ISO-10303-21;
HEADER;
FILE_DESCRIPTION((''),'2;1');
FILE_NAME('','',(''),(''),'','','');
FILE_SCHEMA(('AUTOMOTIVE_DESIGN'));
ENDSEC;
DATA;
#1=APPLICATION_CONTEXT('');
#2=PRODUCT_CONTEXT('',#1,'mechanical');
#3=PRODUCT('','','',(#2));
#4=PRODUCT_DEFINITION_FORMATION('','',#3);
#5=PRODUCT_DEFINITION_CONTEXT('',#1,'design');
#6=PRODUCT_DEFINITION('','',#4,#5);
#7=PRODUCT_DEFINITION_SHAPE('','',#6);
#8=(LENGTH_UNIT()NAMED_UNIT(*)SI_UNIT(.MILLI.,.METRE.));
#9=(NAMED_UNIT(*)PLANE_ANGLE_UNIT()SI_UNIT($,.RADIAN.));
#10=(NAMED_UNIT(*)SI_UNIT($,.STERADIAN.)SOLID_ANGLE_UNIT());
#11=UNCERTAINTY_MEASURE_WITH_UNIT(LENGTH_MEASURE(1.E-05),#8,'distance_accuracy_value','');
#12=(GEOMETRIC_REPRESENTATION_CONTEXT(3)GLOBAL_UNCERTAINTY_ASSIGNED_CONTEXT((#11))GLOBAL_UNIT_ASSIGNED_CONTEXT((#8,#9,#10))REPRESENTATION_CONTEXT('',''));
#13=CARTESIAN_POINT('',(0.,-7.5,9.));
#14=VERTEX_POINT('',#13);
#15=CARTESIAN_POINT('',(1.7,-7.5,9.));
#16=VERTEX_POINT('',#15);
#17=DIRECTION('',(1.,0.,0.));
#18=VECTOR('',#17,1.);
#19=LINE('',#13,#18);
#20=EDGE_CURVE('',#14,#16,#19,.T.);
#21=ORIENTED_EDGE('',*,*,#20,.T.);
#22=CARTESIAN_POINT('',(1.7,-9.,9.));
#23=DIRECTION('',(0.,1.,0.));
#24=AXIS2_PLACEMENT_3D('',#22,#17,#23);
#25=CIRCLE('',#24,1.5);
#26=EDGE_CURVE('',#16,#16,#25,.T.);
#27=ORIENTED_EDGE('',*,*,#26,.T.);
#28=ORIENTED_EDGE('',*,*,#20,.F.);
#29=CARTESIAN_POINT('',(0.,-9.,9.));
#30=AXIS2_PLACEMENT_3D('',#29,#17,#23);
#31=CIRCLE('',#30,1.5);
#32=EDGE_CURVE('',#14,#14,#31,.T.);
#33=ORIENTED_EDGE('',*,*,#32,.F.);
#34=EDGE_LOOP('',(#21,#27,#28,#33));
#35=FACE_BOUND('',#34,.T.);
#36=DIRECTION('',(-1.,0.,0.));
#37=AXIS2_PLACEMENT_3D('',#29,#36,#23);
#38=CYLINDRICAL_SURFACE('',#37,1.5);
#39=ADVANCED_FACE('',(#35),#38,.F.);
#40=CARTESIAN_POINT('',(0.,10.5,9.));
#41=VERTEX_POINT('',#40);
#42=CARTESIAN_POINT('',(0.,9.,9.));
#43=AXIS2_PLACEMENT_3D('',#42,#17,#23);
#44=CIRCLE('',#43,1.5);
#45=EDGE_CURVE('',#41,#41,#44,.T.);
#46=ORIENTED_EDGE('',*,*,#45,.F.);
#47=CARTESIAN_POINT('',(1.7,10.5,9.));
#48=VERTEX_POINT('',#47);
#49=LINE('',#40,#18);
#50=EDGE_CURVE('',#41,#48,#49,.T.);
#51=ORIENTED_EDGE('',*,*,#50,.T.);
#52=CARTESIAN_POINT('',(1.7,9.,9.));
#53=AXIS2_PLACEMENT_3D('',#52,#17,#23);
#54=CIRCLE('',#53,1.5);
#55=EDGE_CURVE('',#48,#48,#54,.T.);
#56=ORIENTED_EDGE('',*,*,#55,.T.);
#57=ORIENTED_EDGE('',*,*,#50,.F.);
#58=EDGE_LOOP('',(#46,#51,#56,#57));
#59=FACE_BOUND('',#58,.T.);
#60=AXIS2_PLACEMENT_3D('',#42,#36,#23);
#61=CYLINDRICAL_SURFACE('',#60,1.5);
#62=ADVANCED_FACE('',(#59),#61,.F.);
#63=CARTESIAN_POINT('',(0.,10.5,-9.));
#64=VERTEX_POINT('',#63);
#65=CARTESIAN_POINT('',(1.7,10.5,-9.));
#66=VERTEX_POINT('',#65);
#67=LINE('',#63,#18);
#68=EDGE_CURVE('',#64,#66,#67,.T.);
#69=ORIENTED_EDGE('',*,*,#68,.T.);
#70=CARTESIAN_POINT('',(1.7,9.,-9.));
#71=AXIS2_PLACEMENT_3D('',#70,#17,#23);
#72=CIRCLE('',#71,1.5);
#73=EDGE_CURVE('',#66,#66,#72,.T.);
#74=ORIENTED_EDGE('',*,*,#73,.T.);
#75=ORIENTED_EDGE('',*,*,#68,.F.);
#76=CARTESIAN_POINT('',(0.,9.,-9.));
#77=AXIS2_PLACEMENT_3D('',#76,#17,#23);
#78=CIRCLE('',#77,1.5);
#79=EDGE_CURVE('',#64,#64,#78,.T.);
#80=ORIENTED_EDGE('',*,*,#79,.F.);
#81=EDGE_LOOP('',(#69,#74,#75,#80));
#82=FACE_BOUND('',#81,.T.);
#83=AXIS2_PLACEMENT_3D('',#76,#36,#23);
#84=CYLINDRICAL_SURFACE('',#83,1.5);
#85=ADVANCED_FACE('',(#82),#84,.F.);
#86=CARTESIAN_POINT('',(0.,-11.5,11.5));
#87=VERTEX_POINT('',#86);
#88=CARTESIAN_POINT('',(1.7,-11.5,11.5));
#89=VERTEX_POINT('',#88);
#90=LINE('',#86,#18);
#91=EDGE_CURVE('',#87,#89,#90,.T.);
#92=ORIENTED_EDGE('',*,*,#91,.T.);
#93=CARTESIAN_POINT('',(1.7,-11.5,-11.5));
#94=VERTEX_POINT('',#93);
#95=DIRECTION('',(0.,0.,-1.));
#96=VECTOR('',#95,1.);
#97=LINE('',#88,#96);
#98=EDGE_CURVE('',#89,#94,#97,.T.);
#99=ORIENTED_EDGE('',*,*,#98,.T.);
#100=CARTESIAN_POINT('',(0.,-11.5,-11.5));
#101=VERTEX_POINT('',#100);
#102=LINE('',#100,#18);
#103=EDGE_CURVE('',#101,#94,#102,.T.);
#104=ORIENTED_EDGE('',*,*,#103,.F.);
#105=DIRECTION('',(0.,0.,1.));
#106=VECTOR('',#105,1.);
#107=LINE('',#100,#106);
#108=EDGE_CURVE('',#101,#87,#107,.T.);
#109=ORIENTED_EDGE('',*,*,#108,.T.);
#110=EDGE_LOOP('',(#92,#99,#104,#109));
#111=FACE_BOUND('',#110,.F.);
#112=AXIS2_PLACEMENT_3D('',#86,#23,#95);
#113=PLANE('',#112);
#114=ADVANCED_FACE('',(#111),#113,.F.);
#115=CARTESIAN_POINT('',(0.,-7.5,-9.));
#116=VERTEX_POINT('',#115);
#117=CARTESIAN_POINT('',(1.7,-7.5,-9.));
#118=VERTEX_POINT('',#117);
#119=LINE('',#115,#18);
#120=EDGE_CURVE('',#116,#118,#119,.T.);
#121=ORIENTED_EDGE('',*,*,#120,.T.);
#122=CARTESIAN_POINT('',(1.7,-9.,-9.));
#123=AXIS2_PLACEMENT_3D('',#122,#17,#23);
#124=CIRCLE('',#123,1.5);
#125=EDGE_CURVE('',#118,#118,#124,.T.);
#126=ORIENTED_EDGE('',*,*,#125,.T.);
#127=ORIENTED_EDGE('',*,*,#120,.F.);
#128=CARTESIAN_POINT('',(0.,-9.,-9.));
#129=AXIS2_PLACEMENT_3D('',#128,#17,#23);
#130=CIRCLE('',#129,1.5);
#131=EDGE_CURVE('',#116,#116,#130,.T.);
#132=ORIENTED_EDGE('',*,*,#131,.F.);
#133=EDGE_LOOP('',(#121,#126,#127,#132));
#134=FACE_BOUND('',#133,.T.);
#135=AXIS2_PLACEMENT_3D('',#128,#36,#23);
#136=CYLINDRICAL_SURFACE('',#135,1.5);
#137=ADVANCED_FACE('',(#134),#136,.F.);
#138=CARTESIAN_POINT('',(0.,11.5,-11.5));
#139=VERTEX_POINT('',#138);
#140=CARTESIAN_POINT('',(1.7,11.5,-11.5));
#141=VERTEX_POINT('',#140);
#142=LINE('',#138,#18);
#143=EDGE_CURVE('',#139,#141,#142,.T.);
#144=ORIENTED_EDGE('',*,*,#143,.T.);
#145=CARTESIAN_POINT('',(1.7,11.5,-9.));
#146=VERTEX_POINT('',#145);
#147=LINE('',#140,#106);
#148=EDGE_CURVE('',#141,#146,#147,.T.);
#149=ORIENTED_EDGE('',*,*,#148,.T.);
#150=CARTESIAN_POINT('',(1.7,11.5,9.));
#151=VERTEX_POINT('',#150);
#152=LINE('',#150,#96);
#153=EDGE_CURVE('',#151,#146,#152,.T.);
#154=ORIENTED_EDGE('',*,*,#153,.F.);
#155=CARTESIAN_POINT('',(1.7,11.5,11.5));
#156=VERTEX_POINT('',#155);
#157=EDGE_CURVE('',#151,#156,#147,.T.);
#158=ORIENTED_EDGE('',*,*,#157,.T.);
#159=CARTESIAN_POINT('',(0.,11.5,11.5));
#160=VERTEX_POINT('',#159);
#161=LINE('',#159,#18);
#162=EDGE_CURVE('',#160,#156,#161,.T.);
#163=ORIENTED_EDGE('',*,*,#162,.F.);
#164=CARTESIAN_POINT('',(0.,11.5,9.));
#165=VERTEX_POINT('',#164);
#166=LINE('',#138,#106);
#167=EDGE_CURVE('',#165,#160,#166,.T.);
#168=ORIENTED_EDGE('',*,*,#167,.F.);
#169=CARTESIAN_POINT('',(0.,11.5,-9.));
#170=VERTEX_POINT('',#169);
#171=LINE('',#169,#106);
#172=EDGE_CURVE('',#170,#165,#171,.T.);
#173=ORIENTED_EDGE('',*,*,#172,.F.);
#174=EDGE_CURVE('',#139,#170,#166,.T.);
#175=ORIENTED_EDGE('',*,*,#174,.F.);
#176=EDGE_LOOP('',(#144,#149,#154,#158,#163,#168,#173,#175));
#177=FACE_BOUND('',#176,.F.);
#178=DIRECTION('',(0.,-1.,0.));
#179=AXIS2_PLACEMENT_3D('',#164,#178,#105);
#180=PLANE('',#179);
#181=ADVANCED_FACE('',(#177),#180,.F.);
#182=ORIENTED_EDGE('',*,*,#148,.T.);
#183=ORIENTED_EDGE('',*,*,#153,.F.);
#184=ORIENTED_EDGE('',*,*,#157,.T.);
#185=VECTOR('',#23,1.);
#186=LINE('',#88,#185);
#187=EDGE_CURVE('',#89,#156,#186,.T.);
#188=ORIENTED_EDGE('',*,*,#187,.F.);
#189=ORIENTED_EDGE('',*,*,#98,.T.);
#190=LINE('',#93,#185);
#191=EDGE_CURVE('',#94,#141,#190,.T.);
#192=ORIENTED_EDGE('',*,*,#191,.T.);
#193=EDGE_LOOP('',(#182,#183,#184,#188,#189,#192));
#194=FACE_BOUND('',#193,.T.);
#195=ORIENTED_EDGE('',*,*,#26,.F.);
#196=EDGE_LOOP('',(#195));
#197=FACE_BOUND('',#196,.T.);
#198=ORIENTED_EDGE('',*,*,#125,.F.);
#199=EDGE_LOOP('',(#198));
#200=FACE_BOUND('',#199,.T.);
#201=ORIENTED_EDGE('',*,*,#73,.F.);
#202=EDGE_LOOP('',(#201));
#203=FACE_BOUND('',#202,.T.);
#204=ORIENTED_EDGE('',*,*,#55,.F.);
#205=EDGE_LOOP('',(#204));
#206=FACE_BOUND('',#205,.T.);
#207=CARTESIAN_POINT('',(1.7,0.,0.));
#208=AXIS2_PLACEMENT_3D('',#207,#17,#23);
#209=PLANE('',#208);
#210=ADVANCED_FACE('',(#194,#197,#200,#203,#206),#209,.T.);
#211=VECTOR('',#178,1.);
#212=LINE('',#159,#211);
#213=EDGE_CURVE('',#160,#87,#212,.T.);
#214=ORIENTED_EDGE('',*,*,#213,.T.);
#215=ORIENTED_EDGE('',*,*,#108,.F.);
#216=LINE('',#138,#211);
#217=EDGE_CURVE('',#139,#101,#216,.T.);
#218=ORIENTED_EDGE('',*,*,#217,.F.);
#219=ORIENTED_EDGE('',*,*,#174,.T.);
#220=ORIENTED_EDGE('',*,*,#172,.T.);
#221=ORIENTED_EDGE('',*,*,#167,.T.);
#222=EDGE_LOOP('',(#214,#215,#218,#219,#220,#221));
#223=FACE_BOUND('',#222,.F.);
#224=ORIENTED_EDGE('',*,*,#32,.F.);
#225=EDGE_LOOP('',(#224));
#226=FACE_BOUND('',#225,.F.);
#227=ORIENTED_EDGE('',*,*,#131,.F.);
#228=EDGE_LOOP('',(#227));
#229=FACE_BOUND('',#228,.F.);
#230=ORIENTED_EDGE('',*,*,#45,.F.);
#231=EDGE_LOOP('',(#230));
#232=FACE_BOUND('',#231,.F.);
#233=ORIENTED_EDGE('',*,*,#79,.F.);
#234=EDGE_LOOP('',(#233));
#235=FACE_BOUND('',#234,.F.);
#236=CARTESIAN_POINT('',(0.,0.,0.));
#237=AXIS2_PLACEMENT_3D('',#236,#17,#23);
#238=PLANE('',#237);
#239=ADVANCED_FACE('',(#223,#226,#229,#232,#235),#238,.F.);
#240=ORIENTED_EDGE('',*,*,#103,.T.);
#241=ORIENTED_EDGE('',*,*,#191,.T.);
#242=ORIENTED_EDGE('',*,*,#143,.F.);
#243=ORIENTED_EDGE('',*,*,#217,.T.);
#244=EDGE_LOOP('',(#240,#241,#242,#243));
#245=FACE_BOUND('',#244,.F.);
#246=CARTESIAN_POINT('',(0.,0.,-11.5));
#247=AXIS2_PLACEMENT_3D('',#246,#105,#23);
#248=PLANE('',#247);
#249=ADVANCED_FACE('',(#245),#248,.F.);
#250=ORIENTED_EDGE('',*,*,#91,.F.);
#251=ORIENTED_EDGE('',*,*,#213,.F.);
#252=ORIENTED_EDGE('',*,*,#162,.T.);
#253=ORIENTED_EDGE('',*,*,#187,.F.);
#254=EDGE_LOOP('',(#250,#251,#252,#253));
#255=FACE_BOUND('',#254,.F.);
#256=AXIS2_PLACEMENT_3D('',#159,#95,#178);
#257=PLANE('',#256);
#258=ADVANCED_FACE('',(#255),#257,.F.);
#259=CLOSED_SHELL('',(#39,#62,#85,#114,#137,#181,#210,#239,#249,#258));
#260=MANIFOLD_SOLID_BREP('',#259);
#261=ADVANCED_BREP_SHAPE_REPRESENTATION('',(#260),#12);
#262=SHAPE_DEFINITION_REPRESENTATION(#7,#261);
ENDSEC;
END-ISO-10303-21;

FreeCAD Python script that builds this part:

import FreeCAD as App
import Part
import Sketcher
Q = App.Units.Quantity


def add_polygon(sketch, points):
    """Adds a closed chain of lines whose ends are joined by coincident constraints."""
    first, n = sketch.GeometryCount, len(points)
    for a, b in zip(points, points[1:] + points[:1]):
        sketch.addGeometry(Part.LineSegment(App.Vector(*a, 0), App.Vector(*b, 0)), False)
    for i in range(n):
        sketch.addConstraint(Sketcher.Constraint("Coincident", first + i, 2, first + (i + 1) % n, 1))

doc = App.newDocument("Part")
params = doc.addObject("Spreadsheet::Sheet", "Params")
for row, (alias, value) in enumerate([
    ("sketch1_diameter", "3 mm"),
    ("sketch1_width", "23 mm"),
    ("sketch1_height", "2.5 mm"),
    ("pad1_length", "1.7 mm"),
], start=1):
    params.set(f"A{row}", alias)
    params.set(f"B{row}", "=" + value)
    params.setAlias(f"B{row}", alias)

body = doc.addObject("PartDesign::Body", "Body")

# Sketch on YZ plane
sketch1 = body.newObject("Sketcher::SketchObject", "Sketch")
sketch1.AttachmentSupport = (doc.getObject("YZ_Plane"), [""])
sketch1.MapMode = "FlatFace"
add_polygon(sketch1, [(11.5, 9), (11.5, 11.5), (-11.5, 11.5), (-11.5, -11.5), (11.5, -11.5), (11.5, -9)])  # lines 0-5
sketch1.addGeometry(Part.Circle(App.Vector(9, 9, 0), App.Vector(0, 0, 1), 1.5), False)  # 6
sketch1.addGeometry(Part.Circle(App.Vector(9, -9, 0), App.Vector(0, 0, 1), 1.5), False)  # 7
sketch1.addGeometry(Part.Circle(App.Vector(-9, 9, 0), App.Vector(0, 0, 1), 1.5), False)  # 8
sketch1.addGeometry(Part.Circle(App.Vector(-9, -9, 0), App.Vector(0, 0, 1), 1.5), False)  # 9
sketch1.addConstraint([
    Sketcher.Constraint("Vertical", 0),
    Sketcher.Constraint("Horizontal", 1),
    Sketcher.Constraint("Vertical", 2),
    Sketcher.Constraint("Horizontal", 3),
    Sketcher.Constraint("Vertical", 4),
    Sketcher.Constraint("Vertical", 5),
    Sketcher.Constraint("Equal", 6, 7),
    Sketcher.Constraint("Equal", 7, 8),
    Sketcher.Constraint("Equal", 8, 9),
    Sketcher.Constraint("Symmetric", 7, 3, 8, 3, -1, 1),
    Sketcher.Constraint("Symmetric", 6, 3, 9, 3, -1, 1),
    Sketcher.Constraint("Symmetric", 0, 2, 2, 2, -1, 1),
    Sketcher.Constraint("Symmetric", 6, 3, 8, 3, -2),
    Sketcher.Constraint("Horizontal", 9, 3, 4, 2),
    Sketcher.Constraint("Horizontal", 8, 3, 5, 2),
    Sketcher.Constraint("Equal", 3, 2),
    Sketcher.Constraint("Diameter", 6, Q("3 mm")),
    Sketcher.Constraint("DistanceX", 1, 2, 1, 1, Q("23 mm")),
    Sketcher.Constraint("DistanceY", 0, 1, 0, 2, Q("2.5 mm")),
    Sketcher.Constraint("DistanceX", 6, 3, 0, 2, Q("2.5 mm")),
])
sketch1.setExpression("Constraints[22]", "Params.sketch1_diameter")
sketch1.setExpression("Constraints[23]", "Params.sketch1_width")
sketch1.setExpression("Constraints[24]", "Params.sketch1_height")
pad1 = body.newObject("PartDesign::Pad", "Pad")
pad1.Profile = sketch1
pad1.setExpression("Length", "Params.pad1_length")

doc.recompute()
